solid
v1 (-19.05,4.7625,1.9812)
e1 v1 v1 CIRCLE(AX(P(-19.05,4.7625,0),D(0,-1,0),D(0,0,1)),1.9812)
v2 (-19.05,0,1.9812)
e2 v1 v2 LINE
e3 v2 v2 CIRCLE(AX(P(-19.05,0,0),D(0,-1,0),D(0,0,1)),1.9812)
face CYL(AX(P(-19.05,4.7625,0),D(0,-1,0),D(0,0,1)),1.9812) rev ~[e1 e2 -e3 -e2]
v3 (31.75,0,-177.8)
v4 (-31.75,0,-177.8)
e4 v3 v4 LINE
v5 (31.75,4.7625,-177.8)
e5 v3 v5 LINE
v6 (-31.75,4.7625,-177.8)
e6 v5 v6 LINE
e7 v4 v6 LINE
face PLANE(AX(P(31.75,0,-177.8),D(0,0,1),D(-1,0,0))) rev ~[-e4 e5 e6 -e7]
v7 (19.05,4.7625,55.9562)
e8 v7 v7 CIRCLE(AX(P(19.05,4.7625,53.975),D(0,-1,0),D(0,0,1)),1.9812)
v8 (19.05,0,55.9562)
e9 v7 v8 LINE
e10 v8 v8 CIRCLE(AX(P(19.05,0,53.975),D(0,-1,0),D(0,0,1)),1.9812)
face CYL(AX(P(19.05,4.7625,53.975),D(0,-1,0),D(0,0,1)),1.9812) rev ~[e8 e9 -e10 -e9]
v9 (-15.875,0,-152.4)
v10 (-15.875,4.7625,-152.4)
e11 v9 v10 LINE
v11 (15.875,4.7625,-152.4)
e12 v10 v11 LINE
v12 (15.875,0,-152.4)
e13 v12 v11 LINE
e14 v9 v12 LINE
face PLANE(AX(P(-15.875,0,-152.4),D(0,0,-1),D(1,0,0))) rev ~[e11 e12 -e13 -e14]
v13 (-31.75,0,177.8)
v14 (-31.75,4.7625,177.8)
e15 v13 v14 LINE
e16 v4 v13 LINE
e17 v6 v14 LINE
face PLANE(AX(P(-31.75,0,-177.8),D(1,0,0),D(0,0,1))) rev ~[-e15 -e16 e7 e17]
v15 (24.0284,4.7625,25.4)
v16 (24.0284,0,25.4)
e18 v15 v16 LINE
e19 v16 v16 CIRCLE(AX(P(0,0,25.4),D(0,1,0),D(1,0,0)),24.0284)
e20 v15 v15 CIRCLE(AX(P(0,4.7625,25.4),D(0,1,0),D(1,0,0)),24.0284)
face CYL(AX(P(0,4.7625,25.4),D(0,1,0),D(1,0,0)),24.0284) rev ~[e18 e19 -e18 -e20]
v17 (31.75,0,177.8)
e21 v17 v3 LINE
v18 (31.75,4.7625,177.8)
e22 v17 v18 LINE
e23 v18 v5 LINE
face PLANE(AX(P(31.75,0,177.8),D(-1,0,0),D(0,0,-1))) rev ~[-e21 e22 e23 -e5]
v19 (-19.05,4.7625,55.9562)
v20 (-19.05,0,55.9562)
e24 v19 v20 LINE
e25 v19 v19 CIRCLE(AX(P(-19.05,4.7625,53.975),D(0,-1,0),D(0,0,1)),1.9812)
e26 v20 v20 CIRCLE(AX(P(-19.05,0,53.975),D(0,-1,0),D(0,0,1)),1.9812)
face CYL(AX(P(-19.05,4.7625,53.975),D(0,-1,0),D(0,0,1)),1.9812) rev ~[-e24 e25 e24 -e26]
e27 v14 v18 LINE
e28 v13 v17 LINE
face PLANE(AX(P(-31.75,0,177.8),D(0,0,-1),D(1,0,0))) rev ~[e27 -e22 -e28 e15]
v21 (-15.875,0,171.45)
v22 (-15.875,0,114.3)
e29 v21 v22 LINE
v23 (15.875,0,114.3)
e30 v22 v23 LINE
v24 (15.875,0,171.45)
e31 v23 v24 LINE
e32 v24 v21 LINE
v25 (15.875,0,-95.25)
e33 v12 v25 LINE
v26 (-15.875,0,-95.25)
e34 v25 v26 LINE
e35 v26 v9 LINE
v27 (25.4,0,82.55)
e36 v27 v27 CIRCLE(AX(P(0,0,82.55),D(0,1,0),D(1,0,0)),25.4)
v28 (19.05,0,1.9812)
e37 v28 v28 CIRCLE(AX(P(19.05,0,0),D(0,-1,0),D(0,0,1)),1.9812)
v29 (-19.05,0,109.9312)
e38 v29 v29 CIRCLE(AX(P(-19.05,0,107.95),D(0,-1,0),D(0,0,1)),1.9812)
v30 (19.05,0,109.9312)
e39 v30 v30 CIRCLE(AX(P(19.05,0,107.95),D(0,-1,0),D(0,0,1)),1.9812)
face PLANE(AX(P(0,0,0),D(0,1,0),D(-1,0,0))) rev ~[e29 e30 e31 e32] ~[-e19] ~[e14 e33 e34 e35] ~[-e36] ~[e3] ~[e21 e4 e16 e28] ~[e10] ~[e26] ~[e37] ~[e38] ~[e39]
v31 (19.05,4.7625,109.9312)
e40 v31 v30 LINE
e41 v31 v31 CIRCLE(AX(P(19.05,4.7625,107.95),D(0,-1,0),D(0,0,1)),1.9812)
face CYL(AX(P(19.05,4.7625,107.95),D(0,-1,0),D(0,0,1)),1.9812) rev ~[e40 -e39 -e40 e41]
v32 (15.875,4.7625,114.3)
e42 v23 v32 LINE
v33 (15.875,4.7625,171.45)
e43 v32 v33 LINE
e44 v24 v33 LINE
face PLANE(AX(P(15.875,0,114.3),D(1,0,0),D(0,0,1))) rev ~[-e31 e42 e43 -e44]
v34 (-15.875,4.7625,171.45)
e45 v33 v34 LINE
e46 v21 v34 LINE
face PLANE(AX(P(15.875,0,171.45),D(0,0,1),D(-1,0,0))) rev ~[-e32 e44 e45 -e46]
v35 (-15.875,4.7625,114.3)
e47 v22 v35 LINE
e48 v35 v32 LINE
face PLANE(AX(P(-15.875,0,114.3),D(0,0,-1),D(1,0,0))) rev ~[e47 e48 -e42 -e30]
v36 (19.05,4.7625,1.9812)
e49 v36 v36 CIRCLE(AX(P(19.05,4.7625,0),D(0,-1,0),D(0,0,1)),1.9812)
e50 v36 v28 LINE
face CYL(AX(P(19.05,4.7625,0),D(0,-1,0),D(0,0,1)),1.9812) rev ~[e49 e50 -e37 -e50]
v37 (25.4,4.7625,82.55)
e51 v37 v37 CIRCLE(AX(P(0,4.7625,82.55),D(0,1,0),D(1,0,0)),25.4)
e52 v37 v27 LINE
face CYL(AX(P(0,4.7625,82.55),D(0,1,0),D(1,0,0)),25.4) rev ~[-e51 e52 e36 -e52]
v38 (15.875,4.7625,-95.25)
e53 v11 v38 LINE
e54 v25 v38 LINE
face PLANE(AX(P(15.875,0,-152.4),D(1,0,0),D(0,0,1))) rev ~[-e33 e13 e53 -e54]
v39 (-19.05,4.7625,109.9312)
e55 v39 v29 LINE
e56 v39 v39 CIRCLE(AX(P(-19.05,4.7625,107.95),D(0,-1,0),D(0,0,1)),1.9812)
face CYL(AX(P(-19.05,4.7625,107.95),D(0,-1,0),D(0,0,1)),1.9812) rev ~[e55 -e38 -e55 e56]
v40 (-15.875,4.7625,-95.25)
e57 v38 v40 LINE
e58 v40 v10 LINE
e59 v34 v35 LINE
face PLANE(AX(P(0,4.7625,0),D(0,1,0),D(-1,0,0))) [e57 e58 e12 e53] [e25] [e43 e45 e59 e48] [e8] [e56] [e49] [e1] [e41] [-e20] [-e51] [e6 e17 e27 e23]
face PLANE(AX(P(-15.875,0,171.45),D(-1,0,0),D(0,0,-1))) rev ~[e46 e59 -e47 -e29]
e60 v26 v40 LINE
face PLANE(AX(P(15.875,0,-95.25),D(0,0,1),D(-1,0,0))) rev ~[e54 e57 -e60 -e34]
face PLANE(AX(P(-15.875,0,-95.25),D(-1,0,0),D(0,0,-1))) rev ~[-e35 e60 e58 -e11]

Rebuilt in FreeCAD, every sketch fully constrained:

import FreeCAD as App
import Part
import Sketcher
Q = App.Units.Quantity

doc = App.newDocument("Part")
body = doc.addObject("PartDesign::Body", "Body")

# Sketch on XZ plane
sketch1 = doc.addObject("Sketcher::SketchObject", "Sketch")
body.addObject(sketch1)
sketch1.AttachmentSupport = (doc.XZ_Plane, [""])
sketch1.MapMode = "FlatFace"
sketch1.addGeometry(Part.LineSegment(App.Vector(32, 178, 0), App.Vector(32, -178, 0)), False)
sketch1.addGeometry(Part.LineSegment(App.Vector(32, -178, 0), App.Vector(-32, -178, 0)), False)
sketch1.addGeometry(Part.LineSegment(App.Vector(-32, -178, 0), App.Vector(-32, 178, 0)), False)
sketch1.addGeometry(Part.LineSegment(App.Vector(-32, 178, 0), App.Vector(32, 178, 0)), False)
sketch1.addGeometry(Part.LineSegment(App.Vector(-16, -95, 0), App.Vector(-16, -152, 0)), False)
sketch1.addGeometry(Part.LineSegment(App.Vector(-16, -152, 0), App.Vector(16, -152, 0)), False)
sketch1.addGeometry(Part.LineSegment(App.Vector(16, -152, 0), App.Vector(16, -95, 0)), False)
sketch1.addGeometry(Part.LineSegment(App.Vector(16, -95, 0), App.Vector(-16, -95, 0)), False)
sketch1.addGeometry(Part.LineSegment(App.Vector(16, 114, 0), App.Vector(16, 171, 0)), False)
sketch1.addGeometry(Part.LineSegment(App.Vector(16, 171, 0), App.Vector(-16, 171, 0)), False)
sketch1.addGeometry(Part.LineSegment(App.Vector(-16, 171, 0), App.Vector(-16, 114, 0)), False)
sketch1.addGeometry(Part.LineSegment(App.Vector(-16, 114, 0), App.Vector(16, 114, 0)), False)
sketch1.addConstraint(Sketcher.Constraint("Coincident", 0, 2, 1, 1))
sketch1.addConstraint(Sketcher.Constraint("Coincident", 1, 2, 2, 1))
sketch1.addConstraint(Sketcher.Constraint("Coincident", 2, 2, 3, 1))
sketch1.addConstraint(Sketcher.Constraint("Coincident", 3, 2, 0, 1))
sketch1.addConstraint(Sketcher.Constraint("Coincident", 4, 2, 5, 1))
sketch1.addConstraint(Sketcher.Constraint("Coincident", 5, 2, 6, 1))
sketch1.addConstraint(Sketcher.Constraint("Coincident", 6, 2, 7, 1))
sketch1.addConstraint(Sketcher.Constraint("Coincident", 7, 2, 4, 1))
sketch1.addConstraint(Sketcher.Constraint("Coincident", 8, 2, 9, 1))
sketch1.addConstraint(Sketcher.Constraint("Coincident", 9, 2, 10, 1))
sketch1.addConstraint(Sketcher.Constraint("Coincident", 10, 2, 11, 1))
sketch1.addConstraint(Sketcher.Constraint("Coincident", 11, 2, 8, 1))
sketch1.addConstraint(Sketcher.Constraint("Vertical", 0))
sketch1.addConstraint(Sketcher.Constraint("Horizontal", 1))
sketch1.addConstraint(Sketcher.Constraint("Vertical", 2))
sketch1.addConstraint(Sketcher.Constraint("Horizontal", 3))
sketch1.addConstraint(Sketcher.Constraint("Vertical", 4))
sketch1.addConstraint(Sketcher.Constraint("Horizontal", 5))
sketch1.addConstraint(Sketcher.Constraint("Vertical", 6))
sketch1.addConstraint(Sketcher.Constraint("Horizontal", 7))
sketch1.addConstraint(Sketcher.Constraint("Vertical", 8))
sketch1.addConstraint(Sketcher.Constraint("Horizontal", 9))
sketch1.addConstraint(Sketcher.Constraint("Vertical", 10))
sketch1.addConstraint(Sketcher.Constraint("Horizontal", 11))
sketch1.addConstraint(Sketcher.Constraint("Symmetric", 0, 2, 2, 2, -1, 1))
sketch1.addConstraint(Sketcher.Constraint("Vertical", 6, 2, 8, 2))
sketch1.addConstraint(Sketcher.Constraint("Vertical", 7, 2, 9, 2))
sketch1.addConstraint(Sketcher.Constraint("Equal", 6, 8))
sketch1.addConstraint(Sketcher.Constraint("DistanceY", 0, 2, 0, 1, Q("14 in")))
sketch1.addConstraint(Sketcher.Constraint("DistanceX", 1, 2, 1, 1, Q("2.5 in")))
sketch1.addConstraint(Sketcher.Constraint("DistanceY", 1, 2, 4, 2, Q("1 in")))
sketch1.addConstraint(Sketcher.Constraint("DistanceX", 5, 1, 5, 2, Q("1.25 in")))
sketch1.addConstraint(Sketcher.Constraint("DistanceY", 4, 2, 4, 1, Q("2.25 in")))
sketch1.addConstraint(Sketcher.Constraint("DistanceY", 10, 2, 2, 2, Q("2.5 in")))
sketch1.addConstraint(Sketcher.Constraint("DistanceX", 4, 2, -1, 1, Q("0.625 in")))
pad1 = doc.addObject("PartDesign::Pad", "Pad")
body.addObject(pad1)
pad1.Profile = sketch1
pad1.Length = Q("0.1875 in")
pad1.Reversed = True

# Sketch on XZ plane
sketch2 = doc.addObject("Sketcher::SketchObject", "Sketch001")
body.addObject(sketch2)
sketch2.AttachmentSupport = (doc.XZ_Plane, [""])
sketch2.MapMode = "FlatFace"
sketch2.AttachmentOffset = App.Placement(App.Vector(0, 0, -0.1875 * 25.4), App.Rotation())
sketch2.addGeometry(Part.Circle(App.Vector(0, 83, 0), App.Vector(0, 0, 1), 25), False)
sketch2.addGeometry(Part.Circle(App.Vector(0, 25, 0), App.Vector(0, 0, 1), 24), False)
sketch2.addConstraint(Sketcher.Constraint("PointOnObject", 0, 3, -2))
sketch2.addConstraint(Sketcher.Constraint("PointOnObject", 1, 3, -2))
sketch2.addConstraint(Sketcher.Constraint("Diameter", 0, Q("2 in")))
sketch2.addConstraint(Sketcher.Constraint("Diameter", 1, Q("1.892 in")))
sketch2.addConstraint(Sketcher.Constraint("DistanceY", -1, 1, 0, 3, Q("3.25 in")))
sketch2.addConstraint(Sketcher.Constraint("DistanceY", 1, 3, 0, 3, Q("2.25 in")))
pocket1 = doc.addObject("PartDesign::Pocket", "Pocket")
body.addObject(pocket1)
pocket1.Profile = sketch2
pocket1.Length = Q("0.1875 in")
pocket1.Reversed = True

# Sketch on XZ plane
sketch3 = doc.addObject("Sketcher::SketchObject", "Sketch002")
body.addObject(sketch3)
sketch3.AttachmentSupport = (doc.XZ_Plane, [""])
sketch3.MapMode = "FlatFace"
sketch3.AttachmentOffset = App.Placement(App.Vector(0, 0, -0.1875 * 25.4), App.Rotation())
sketch3.addGeometry(Part.Circle(App.Vector(19.1, 108, 0), App.Vector(0, 0, 1), 2), False)
sketch3.addGeometry(Part.Circle(App.Vector(-19.1, 108, 0), App.Vector(0, 0, 1), 2), False)
sketch3.addGeometry(Part.Circle(App.Vector(19.1, 54, 0), App.Vector(0, 0, 1), 2), False)
sketch3.addGeometry(Part.Circle(App.Vector(-19.1, 54, 0), App.Vector(0, 0, 1), 2), False)
sketch3.addGeometry(Part.Circle(App.Vector(19.1, 0, 0), App.Vector(0, 0, 1), 2), False)
sketch3.addGeometry(Part.Circle(App.Vector(-19.1, 0, 0), App.Vector(0, 0, 1), 2), False)
sketch3.addConstraint(Sketcher.Constraint("Equal", 0, 1))
sketch3.addConstraint(Sketcher.Constraint("Equal", 1, 2))
sketch3.addConstraint(Sketcher.Constraint("Equal", 2, 3))
sketch3.addConstraint(Sketcher.Constraint("Equal", 3, 4))
sketch3.addConstraint(Sketcher.Constraint("Equal", 4, 5))
sketch3.addConstraint(Sketcher.Constraint("Symmetric", 4, 3, 5, 3, -1, 1))
sketch3.addConstraint(Sketcher.Constraint("Symmetric", 0, 3, 1, 3, -2))
sketch3.addConstraint(Sketcher.Constraint("Symmetric", 2, 3, 3, 3, -2))
sketch3.addConstraint(Sketcher.Constraint("PointOnObject", 4, 3, -1))
sketch3.addConstraint(Sketcher.Constraint("Vertical", 0, 3, 2, 3))
sketch3.addConstraint(Sketcher.Constraint("Vertical", 2, 3, 4, 3))
sketch3.addConstraint(Sketcher.Constraint("Diameter", 0, Q("0.156 in")))
sketch3.addConstraint(Sketcher.Constraint("DistanceX", 1, 3, 0, 3, Q("1.5 in")))
sketch3.addConstraint(Sketcher.Constraint("DistanceY", -1, 1, 0, 3, Q("4.25 in")))
sketch3.addConstraint(Sketcher.Constraint("DistanceY", -1, 1, 2, 3, Q("2.125 in")))
doc.recompute()
hole = doc.addObject("PartDesign::Hole", "Hole")
body.addObject(hole)
hole.Profile = sketch3
hole.ThreadType = "None"
hole.Diameter = Q("0.156 in")
hole.DepthType = "ThroughAll"
hole.Reversed = True

doc.recompute()
